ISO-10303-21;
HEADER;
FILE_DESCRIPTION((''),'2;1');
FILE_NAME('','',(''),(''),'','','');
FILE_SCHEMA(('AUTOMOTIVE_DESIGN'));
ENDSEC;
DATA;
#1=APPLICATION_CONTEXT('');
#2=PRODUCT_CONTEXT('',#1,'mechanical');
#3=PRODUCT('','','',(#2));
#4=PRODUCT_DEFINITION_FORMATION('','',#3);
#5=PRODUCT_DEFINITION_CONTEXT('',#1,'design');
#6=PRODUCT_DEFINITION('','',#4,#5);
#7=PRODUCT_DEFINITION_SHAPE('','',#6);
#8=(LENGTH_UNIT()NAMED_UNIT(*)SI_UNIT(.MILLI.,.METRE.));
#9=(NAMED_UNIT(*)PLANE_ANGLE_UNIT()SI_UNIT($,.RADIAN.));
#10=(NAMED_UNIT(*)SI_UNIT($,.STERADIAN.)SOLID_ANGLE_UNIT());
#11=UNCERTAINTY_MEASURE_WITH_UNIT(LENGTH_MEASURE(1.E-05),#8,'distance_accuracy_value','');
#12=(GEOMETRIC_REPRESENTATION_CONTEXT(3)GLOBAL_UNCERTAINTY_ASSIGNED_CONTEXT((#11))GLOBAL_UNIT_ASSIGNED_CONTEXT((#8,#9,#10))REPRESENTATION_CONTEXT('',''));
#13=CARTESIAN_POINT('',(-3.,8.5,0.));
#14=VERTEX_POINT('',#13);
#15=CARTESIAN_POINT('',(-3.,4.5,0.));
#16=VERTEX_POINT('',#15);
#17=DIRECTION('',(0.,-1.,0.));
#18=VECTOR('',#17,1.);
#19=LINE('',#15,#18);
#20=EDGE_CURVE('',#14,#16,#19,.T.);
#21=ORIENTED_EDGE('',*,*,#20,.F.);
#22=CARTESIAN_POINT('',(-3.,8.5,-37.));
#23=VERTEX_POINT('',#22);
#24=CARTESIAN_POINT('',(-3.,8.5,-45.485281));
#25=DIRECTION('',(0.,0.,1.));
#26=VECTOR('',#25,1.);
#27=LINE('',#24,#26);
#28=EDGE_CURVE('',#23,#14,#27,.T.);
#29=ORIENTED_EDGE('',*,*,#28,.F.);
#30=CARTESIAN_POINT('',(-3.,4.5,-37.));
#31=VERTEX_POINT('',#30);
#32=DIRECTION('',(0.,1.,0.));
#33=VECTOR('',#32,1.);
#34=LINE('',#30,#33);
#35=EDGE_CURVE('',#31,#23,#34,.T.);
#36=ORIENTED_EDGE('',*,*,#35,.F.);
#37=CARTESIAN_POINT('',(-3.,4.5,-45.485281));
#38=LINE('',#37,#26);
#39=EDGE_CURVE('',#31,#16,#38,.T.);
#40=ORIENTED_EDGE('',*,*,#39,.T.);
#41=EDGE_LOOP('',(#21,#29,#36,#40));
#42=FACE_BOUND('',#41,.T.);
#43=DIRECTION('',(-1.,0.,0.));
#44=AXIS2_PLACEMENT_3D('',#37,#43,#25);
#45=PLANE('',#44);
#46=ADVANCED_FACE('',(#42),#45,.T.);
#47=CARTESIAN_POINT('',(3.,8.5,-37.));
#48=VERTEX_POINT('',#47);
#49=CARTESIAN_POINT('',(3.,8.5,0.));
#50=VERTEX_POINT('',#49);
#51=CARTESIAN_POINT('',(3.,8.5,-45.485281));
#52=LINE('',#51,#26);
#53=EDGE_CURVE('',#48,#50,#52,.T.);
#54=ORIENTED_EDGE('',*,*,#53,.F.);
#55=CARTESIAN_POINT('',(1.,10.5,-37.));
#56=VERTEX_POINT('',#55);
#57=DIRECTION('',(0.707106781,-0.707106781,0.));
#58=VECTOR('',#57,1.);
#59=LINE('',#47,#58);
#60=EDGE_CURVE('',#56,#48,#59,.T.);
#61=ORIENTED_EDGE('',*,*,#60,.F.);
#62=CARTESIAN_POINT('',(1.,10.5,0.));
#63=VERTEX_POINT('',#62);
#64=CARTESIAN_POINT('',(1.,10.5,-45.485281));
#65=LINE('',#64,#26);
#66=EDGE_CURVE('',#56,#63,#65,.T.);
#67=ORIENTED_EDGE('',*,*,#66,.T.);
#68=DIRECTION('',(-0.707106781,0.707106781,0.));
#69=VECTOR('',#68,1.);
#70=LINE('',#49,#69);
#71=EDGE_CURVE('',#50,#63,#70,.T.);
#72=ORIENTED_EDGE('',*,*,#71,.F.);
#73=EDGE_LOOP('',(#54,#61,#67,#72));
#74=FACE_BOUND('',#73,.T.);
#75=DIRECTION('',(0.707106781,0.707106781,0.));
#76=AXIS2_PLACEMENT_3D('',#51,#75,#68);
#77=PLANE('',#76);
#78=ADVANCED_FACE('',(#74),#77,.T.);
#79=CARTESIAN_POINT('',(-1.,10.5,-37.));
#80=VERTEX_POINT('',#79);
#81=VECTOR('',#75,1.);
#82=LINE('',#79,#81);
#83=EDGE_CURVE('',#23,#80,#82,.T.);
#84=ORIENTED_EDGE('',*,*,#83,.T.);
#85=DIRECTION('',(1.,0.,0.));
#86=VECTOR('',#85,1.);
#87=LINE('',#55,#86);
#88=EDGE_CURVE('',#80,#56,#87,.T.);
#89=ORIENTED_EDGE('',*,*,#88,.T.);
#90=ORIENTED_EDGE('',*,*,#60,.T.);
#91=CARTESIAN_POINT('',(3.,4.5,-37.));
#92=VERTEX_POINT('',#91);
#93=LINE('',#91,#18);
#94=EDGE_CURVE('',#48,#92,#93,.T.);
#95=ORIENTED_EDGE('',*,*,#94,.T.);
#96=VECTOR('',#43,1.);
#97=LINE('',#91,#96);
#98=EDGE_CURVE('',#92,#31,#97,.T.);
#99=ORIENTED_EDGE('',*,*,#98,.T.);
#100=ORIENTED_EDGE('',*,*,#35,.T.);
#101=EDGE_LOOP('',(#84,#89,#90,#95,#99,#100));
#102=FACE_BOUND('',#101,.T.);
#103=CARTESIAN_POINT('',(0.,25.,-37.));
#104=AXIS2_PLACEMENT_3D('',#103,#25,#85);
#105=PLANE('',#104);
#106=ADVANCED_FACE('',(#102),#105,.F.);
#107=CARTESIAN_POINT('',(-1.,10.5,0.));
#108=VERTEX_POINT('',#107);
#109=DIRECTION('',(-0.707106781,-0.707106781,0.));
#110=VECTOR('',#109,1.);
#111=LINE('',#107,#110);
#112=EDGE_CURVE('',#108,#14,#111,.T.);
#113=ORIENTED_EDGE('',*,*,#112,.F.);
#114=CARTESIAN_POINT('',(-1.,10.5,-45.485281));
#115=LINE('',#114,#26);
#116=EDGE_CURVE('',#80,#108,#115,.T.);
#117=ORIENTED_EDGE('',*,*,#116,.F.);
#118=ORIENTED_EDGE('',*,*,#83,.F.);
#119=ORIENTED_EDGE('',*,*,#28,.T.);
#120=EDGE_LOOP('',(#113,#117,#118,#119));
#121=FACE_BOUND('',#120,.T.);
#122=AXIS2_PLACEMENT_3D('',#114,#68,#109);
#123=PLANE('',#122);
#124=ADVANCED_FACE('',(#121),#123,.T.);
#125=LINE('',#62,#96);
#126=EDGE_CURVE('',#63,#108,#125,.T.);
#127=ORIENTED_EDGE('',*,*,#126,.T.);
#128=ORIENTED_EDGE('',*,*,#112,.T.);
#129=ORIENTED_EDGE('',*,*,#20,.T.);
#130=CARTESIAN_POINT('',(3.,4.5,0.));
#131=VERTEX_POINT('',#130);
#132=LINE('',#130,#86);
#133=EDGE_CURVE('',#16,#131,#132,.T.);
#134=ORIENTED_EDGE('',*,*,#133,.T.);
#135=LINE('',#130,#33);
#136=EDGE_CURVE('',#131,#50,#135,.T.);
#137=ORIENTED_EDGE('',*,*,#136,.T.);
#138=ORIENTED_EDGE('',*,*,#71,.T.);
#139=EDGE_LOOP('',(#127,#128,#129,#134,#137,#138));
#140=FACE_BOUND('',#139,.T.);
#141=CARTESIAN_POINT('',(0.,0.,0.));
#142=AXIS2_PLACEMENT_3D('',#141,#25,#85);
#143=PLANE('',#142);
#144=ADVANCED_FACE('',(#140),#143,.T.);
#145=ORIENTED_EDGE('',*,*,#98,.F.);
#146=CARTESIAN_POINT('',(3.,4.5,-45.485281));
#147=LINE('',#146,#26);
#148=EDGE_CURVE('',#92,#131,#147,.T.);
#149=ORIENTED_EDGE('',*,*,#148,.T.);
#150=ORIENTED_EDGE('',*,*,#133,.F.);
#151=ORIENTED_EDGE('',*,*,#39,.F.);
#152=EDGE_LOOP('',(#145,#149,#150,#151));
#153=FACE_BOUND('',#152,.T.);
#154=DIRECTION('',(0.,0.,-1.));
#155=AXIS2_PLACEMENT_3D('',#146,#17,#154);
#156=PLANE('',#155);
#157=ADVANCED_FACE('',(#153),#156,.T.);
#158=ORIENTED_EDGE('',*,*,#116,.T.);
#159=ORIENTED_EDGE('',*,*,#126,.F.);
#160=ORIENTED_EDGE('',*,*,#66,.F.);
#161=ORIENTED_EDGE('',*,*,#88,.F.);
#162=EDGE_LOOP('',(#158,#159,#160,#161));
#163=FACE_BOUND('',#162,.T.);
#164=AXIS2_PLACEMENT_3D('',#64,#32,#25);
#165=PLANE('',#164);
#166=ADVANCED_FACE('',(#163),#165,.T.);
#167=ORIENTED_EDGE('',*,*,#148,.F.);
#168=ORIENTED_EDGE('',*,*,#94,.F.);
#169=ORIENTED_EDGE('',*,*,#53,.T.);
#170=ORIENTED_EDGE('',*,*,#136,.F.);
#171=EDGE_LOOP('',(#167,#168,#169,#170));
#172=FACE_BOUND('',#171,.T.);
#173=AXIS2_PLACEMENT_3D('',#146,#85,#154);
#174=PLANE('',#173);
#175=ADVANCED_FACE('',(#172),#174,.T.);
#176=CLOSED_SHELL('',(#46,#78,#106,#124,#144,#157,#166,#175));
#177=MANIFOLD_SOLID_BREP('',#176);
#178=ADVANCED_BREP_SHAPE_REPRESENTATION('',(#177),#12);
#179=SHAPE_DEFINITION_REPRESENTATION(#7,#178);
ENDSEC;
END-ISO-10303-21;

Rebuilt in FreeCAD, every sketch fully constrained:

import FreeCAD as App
import Part
import Sketcher
Q = App.Units.Quantity

doc = App.newDocument("Part")
body = doc.addObject("PartDesign::Body", "Body")

# Sketch on XY plane
sketch1 = body.newObject("Sketcher::SketchObject", "Sketch")
sketch1.AttachmentSupport = (doc.getObject("XY_Plane"), [""])
sketch1.MapMode = "FlatFace"
sketch1.addGeometry([
    Part.LineSegment(App.Vector(-3, 4.5, 0), App.Vector(3, 4.5, 0)),  # 0
    Part.LineSegment(App.Vector(3, 4.5, 0), App.Vector(3, 8.5, 0)),  # 1
    Part.LineSegment(App.Vector(3, 8.5, 0), App.Vector(1, 10.5, 0)),  # 2
    Part.LineSegment(App.Vector(1, 10.5, 0), App.Vector(-1, 10.5, 0)),  # 3
    Part.LineSegment(App.Vector(-1, 10.5, 0), App.Vector(-3, 8.5, 0)),  # 4
    Part.LineSegment(App.Vector(-3, 8.5, 0), App.Vector(-3, 4.5, 0)),  # 5
], False)
sketch1.addConstraint([
    Sketcher.Constraint("Coincident", 0, 2, 1, 1),
    Sketcher.Constraint("Coincident", 1, 2, 2, 1),
    Sketcher.Constraint("Coincident", 2, 2, 3, 1),
    Sketcher.Constraint("Coincident", 3, 2, 4, 1),
    Sketcher.Constraint("Coincident", 4, 2, 5, 1),
    Sketcher.Constraint("Coincident", 5, 2, 0, 1),
    Sketcher.Constraint("Horizontal", 0),
    Sketcher.Constraint("Vertical", 1),
    Sketcher.Constraint("Horizontal", 3),
    Sketcher.Constraint("Vertical", 5),
    Sketcher.Constraint("Symmetric", 1, 2, 4, 2, -2),
    Sketcher.Constraint("Perpendicular", 2, 4),
    Sketcher.Constraint("Equal", 2, 4),
    Sketcher.Constraint("DistanceX", 0, 1, 0, 2, Q("6 mm")),
    Sketcher.Constraint("DistanceX", 3, 2, 3, 1, Q("2 mm")),
    Sketcher.Constraint("DistanceY", 1, 1, 1, 2, Q("4 mm")),
    Sketcher.Constraint("DistanceY", -1, 1, 0, 2, Q("4.5 mm")),
])
pad1 = body.newObject("PartDesign::Pad", "Pad")
pad1.Profile = sketch1
pad1.Length = 37
pad1.Reversed = True

doc.recompute()
